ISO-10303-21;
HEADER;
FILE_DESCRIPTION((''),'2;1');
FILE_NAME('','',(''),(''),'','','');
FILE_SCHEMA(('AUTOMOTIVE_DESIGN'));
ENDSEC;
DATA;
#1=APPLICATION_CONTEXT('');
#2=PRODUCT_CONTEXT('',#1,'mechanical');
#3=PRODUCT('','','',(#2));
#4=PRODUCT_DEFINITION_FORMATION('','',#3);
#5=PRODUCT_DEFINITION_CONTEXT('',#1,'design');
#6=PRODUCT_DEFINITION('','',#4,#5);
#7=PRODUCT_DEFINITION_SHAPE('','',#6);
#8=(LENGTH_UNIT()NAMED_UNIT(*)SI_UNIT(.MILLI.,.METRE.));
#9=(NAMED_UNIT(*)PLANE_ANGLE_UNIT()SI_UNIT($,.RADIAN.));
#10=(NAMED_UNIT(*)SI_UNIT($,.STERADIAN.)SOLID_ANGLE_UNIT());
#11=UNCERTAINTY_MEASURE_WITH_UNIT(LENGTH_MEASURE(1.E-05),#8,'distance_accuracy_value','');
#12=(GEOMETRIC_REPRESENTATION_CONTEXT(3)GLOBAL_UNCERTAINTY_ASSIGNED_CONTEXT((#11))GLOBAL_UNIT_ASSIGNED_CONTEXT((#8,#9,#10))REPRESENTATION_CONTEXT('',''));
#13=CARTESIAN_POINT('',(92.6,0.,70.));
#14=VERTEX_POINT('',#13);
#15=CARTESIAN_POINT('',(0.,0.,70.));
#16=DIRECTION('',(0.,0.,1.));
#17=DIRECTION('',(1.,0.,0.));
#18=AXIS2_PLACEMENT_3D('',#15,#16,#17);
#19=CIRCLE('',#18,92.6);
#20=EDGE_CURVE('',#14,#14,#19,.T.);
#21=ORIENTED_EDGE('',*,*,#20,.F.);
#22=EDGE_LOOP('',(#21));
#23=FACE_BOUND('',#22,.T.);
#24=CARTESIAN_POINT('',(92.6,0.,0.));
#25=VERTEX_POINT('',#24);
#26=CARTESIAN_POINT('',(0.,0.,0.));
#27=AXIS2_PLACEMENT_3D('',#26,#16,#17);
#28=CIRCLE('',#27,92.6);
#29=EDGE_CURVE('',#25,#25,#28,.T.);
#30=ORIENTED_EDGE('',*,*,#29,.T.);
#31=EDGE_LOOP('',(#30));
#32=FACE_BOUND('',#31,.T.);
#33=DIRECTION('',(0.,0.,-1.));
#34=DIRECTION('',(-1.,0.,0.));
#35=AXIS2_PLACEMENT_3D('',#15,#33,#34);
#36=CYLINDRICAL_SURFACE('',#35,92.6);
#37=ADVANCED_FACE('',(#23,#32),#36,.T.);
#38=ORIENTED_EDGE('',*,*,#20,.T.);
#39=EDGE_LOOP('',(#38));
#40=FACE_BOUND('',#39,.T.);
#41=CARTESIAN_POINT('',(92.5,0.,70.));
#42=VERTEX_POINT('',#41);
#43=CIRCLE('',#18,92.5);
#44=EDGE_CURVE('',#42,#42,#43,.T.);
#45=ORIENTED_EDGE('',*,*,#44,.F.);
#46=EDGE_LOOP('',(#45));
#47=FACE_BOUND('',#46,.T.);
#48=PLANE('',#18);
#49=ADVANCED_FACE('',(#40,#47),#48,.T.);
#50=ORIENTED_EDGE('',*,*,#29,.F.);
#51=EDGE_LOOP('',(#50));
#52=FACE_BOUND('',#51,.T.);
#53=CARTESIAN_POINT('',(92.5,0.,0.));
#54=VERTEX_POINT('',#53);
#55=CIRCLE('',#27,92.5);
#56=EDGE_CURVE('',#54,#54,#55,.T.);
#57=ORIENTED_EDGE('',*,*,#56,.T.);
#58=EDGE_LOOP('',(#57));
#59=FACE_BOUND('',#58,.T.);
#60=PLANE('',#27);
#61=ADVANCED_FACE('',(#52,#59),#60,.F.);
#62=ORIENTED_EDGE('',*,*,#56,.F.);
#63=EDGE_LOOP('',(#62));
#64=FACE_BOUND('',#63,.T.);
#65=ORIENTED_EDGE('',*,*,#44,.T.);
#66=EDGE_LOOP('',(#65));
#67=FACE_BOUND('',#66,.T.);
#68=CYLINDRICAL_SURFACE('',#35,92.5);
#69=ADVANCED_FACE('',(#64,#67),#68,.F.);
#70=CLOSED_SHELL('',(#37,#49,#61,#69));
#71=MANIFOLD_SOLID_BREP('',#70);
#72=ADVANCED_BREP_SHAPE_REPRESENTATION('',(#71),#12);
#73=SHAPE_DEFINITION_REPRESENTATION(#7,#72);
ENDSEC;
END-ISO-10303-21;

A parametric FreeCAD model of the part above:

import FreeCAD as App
import Part
import Sketcher
from FreeCAD import Vector

doc = App.newDocument("Part")
body = doc.addObject("PartDesign::Body", "Body")

# Sketch on XY plane
sketch1 = doc.addObject("Sketcher::SketchObject", "Sketch")
body.addObject(sketch1)
sketch1.AttachmentSupport = (doc.XY_Plane, [""])
sketch1.MapMode = "FlatFace"
sketch1.addGeometry(Part.Circle(Vector(0, 0, 0), Vector(0, 0, 1), 93), False)
sketch1.addGeometry(Part.Circle(Vector(0, 0, 0), Vector(0, 0, 1), 92), False)
sketch1.addConstraint(Sketcher.Constraint("Coincident", 0, 3, -1, 1))
sketch1.addConstraint(Sketcher.Constraint("Coincident", 1, 3, -1, 1))
sketch1.addConstraint(Sketcher.Constraint("Diameter", 1, 185.0))
sketch1.addConstraint(Sketcher.Constraint("Diameter", 0, 185.2))
pad1 = doc.addObject("PartDesign::Pad", "Pad")
body.addObject(pad1)
pad1.Profile = sketch1
pad1.Length = 70

doc.recompute()
